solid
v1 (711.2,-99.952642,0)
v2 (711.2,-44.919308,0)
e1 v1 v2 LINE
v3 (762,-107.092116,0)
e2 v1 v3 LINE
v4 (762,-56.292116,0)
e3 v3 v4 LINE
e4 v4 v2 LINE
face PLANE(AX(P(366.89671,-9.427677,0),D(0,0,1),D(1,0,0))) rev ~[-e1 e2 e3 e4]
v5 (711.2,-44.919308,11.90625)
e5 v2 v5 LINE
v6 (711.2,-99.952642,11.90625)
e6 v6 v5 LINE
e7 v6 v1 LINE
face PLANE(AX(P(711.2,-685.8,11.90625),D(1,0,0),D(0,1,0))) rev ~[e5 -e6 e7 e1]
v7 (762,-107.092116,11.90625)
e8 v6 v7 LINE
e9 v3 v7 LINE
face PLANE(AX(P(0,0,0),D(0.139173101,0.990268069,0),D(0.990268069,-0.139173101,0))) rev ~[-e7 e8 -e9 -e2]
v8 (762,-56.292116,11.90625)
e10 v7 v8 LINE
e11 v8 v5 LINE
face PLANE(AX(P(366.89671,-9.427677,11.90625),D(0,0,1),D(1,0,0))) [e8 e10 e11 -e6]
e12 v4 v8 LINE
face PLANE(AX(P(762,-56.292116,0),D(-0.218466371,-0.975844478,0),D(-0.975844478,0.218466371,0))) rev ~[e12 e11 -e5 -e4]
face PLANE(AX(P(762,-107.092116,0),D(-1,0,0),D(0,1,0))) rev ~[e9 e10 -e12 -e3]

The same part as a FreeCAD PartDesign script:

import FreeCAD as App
import Part
import Sketcher

V = App.Vector
Q = App.Units.Quantity

doc = App.newDocument("Part")
body = doc.addObject("PartDesign::Body", "Body")

# Sketch on XY plane
sketch1 = doc.addObject("Sketcher::SketchObject", "Sketch")
body.addObject(sketch1)
sketch1.AttachmentSupport = (doc.XY_Plane, [""])
sketch1.MapMode = "FlatFace"
sketch1.addGeometry([
    Part.LineSegment(V(0, 114, 0), V(0, 0, 0)),
    Part.LineSegment(V(0, 0, 0), V(762, -107, 0)),
    Part.LineSegment(V(762, -107, 0), V(762, -56, 0)),
    Part.LineSegment(V(762, -56, 0), V(0, 114, 0)),
], False)
sketch1.addConstraint([
    Sketcher.Constraint("Coincident", 0, 2, 1, 1),
    Sketcher.Constraint("Coincident", 1, 2, 2, 1),
    Sketcher.Constraint("Coincident", 2, 2, 3, 1),
    Sketcher.Constraint("Coincident", 3, 2, 0, 1),
    Sketcher.Constraint("Vertical", 0),
    Sketcher.Constraint("Vertical", 2),
    Sketcher.Constraint("Coincident", 0, 2, -1, 1),
    Sketcher.Constraint("DistanceY", 2, 1, 2, 2, Q("2 in")),
    Sketcher.Constraint("DistanceY", 0, 2, 0, 1, Q("4.5 in")),
    Sketcher.Constraint("DistanceX", -1, 1, 1, 2, Q("30 in")),
    Sketcher.Constraint("Angle", 1, Q("-8 deg")),
])
pad1 = doc.addObject("PartDesign::Pad", "Pad")
body.addObject(pad1)
pad1.Profile = sketch1
pad1.Length = Q("0.46875 in")

# Sketch on XY plane
sketch2 = doc.addObject("Sketcher::SketchObject", "Sketch001")
body.addObject(sketch2)
sketch2.AttachmentSupport = (doc.XY_Plane, [""])
sketch2.MapMode = "FlatFace"
sketch2.AttachmentOffset = App.Placement(V(0, 0, 0.46875 * 25.4), App.Rotation())
sketch2.addGeometry([
    Part.LineSegment(V(0, 686, 0), V(0, -686, 0)),
    Part.LineSegment(V(0, -686, 0), V(711, -686, 0)),
    Part.LineSegment(V(711, -686, 0), V(711, 686, 0)),
    Part.LineSegment(V(711, 686, 0), V(0, 686, 0)),
], False)
sketch2.addConstraint([
    Sketcher.Constraint("Coincident", 0, 2, 1, 1),
    Sketcher.Constraint("Coincident", 1, 2, 2, 1),
    Sketcher.Constraint("Coincident", 2, 2, 3, 1),
    Sketcher.Constraint("Coincident", 3, 2, 0, 1),
    Sketcher.Constraint("Vertical", 0),
    Sketcher.Constraint("Horizontal", 1),
    Sketcher.Constraint("Vertical", 2),
    Sketcher.Constraint("Horizontal", 3),
    Sketcher.Constraint("Symmetric", 0, 2, 3, 2, -1, 1),
    Sketcher.Constraint("DistanceX", 1, 1, 1, 2, Q("28 in")),
    Sketcher.Constraint("DistanceY", 0, 2, 0, 1, Q("54 in")),
])
pocket1 = doc.addObject("PartDesign::Pocket", "Pocket")
body.addObject(pocket1)
pocket1.Profile = sketch2
pocket1.Length = Q("0.46875 in")

doc.recompute()
